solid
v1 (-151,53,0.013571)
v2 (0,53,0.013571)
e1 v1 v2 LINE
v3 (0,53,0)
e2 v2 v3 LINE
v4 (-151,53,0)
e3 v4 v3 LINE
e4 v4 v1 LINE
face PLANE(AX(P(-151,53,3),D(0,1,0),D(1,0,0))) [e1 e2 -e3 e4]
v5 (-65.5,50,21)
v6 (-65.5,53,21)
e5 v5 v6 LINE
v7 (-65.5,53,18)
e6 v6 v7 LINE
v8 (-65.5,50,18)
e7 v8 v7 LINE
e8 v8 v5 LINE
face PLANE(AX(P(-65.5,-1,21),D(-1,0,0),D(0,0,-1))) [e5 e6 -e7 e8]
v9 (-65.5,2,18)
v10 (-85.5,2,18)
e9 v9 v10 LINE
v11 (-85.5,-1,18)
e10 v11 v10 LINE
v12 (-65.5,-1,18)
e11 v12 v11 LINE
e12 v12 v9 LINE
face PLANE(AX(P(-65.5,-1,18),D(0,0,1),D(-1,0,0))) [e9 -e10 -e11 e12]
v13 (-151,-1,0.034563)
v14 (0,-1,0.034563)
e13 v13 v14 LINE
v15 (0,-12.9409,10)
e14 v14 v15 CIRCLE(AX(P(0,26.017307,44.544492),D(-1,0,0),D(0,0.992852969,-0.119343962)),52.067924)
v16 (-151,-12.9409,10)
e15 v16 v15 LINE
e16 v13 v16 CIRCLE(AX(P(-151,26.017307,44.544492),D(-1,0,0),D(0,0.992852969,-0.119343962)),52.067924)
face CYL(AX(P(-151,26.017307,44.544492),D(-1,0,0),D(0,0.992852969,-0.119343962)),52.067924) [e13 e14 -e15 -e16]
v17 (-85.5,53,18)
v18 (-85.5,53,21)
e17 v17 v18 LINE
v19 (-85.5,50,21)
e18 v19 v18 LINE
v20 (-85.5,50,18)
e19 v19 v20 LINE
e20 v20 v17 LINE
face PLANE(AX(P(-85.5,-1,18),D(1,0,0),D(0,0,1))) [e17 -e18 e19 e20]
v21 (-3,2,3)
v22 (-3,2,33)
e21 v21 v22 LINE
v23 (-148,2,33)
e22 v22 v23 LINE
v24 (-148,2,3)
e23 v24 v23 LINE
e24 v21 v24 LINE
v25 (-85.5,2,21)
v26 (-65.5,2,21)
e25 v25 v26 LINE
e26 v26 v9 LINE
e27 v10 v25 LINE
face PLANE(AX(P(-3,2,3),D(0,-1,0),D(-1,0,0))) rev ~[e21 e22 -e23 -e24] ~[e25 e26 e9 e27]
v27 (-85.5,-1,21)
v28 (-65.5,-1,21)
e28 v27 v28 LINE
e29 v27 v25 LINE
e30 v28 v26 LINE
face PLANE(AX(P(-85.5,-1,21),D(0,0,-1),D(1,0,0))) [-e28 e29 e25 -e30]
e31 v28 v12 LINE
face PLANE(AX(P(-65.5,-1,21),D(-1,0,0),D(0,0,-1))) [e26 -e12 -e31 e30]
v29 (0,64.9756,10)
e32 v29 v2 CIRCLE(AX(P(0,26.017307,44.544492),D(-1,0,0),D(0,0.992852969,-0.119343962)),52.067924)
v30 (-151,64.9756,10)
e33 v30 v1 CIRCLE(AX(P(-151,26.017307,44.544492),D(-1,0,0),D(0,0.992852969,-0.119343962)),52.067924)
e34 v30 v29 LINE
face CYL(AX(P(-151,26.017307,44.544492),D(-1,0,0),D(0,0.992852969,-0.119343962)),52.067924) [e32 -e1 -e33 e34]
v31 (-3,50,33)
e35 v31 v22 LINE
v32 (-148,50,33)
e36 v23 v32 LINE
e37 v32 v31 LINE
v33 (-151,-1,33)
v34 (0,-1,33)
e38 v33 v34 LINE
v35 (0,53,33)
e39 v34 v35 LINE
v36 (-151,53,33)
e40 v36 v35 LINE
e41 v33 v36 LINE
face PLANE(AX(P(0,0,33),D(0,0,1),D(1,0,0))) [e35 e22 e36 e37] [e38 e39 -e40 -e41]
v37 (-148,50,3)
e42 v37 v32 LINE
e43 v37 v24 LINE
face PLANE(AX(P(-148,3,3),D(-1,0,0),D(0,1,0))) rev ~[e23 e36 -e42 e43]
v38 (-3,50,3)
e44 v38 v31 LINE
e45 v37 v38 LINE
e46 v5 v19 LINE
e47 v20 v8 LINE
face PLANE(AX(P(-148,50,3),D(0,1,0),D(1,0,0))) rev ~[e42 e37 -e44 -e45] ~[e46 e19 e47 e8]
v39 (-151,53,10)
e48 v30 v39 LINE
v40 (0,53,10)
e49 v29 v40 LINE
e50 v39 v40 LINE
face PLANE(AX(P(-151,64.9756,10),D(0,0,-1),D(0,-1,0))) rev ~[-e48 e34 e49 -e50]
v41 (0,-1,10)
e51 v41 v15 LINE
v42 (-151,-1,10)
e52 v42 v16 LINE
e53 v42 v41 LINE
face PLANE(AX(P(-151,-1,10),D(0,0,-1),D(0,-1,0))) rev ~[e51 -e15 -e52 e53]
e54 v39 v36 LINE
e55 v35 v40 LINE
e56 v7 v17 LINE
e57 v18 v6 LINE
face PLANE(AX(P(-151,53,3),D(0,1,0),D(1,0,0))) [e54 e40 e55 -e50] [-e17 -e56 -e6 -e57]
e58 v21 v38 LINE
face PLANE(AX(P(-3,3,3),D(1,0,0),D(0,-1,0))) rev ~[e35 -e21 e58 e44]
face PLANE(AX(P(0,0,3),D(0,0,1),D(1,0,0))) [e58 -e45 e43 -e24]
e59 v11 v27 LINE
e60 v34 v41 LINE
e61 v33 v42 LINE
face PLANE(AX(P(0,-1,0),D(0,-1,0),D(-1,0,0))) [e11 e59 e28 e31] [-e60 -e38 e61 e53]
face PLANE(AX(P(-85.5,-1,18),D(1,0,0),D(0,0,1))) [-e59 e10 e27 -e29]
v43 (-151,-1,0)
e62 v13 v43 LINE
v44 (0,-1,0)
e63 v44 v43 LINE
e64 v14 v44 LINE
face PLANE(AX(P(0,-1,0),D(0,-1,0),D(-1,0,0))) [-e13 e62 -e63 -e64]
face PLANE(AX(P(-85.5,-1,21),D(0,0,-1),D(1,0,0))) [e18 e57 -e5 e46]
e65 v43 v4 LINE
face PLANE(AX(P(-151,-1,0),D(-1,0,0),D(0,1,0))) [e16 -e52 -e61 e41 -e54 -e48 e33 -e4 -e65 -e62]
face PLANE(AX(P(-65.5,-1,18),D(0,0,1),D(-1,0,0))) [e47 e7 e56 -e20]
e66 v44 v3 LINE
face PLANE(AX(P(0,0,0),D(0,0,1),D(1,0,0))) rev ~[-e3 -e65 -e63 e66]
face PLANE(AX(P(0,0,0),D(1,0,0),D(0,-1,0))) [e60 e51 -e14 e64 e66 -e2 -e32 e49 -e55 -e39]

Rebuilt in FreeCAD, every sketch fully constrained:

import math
import FreeCAD as App
import Part
import Sketcher
Q = App.Units.Quantity


def edges_at(feature, points):
    """Names of the edges that pass closest to the given points."""
    edges = feature.Shape.Edges
    near = lambda p: min(range(len(edges)), key=lambda i: edges[i].distToShape(Part.Vertex(*p))[0])
    return sorted({f"Edge{near(p) + 1}" for p in points})


def add_polygon(sketch, points):
    """Adds a closed chain of lines whose ends are joined by coincident constraints."""
    first, n = sketch.GeometryCount, len(points)
    for a, b in zip(points, points[1:] + points[:1]):
        sketch.addGeometry(Part.LineSegment(App.Vector(*a, 0), App.Vector(*b, 0)), False)
    for i in range(n):
        sketch.addConstraint(Sketcher.Constraint("Coincident", first + i, 2, first + (i + 1) % n, 1))

doc = App.newDocument("Part")
body = doc.addObject("PartDesign::Body", "Body")

# Sketch on XY plane
sketch1 = body.newObject("Sketcher::SketchObject", "Sketch")
sketch1.AttachmentSupport = (doc.getObject("XY_Plane"), [""])
sketch1.MapMode = "FlatFace"
add_polygon(sketch1, [(0, -1), (0, 112), (-151, 112), (-151, -1)])  # lines 0-3
sketch1.addConstraint(Sketcher.Constraint("Vertical", 0))
sketch1.addConstraint(Sketcher.Constraint("Horizontal", 1))
sketch1.addConstraint(Sketcher.Constraint("Vertical", 2))
sketch1.addConstraint(Sketcher.Constraint("Horizontal", 3))
sketch1.addConstraint(Sketcher.Constraint("PointOnObject", 0, 2, -2))
sketch1.addConstraint(Sketcher.Constraint("DistanceX", 1, 2, 1, 1, Q("151 mm")))
sketch1.addConstraint(Sketcher.Constraint("DistanceY", -1, 1, 0, 2, Q("112 mm")))
sketch1.addConstraint(Sketcher.Constraint("DistanceY", 2, 2, -1, 1, Q("1 mm")))
pad1 = body.newObject("PartDesign::Pad", "Pad")
pad1.Profile = sketch1
pad1.Length = 3

# Sketch on XY plane
sketch2 = body.newObject("Sketcher::SketchObject", "Sketch001")
sketch2.AttachmentSupport = (doc.getObject("XY_Plane"), [""])
sketch2.MapMode = "FlatFace"
sketch2.AttachmentOffset = App.Placement(App.Vector(0, 0, 3), App.Rotation())
add_polygon(sketch2, [(-151, 53), (-151, -1), (0, -1), (0, 53)])  # lines 0-3
add_polygon(sketch2, [(-148, 50), (-3, 50), (-3, 2), (-148, 2)])  # lines 4-7
sketch2.addConstraint(Sketcher.Constraint("Vertical", 0))
sketch2.addConstraint(Sketcher.Constraint("Horizontal", 1))
sketch2.addConstraint(Sketcher.Constraint("Vertical", 2))
sketch2.addConstraint(Sketcher.Constraint("Horizontal", 3))
sketch2.addConstraint(Sketcher.Constraint("Horizontal", 4))
sketch2.addConstraint(Sketcher.Constraint("Vertical", 5))
sketch2.addConstraint(Sketcher.Constraint("Horizontal", 6))
sketch2.addConstraint(Sketcher.Constraint("Vertical", 7))
sketch2.addConstraint(Sketcher.Constraint("PointOnObject", 1, 2, -2))
sketch2.addConstraint(Sketcher.Constraint("DistanceX", 1, 1, 1, 2, Q("151 mm")))
sketch2.addConstraint(Sketcher.Constraint("DistanceY", 0, 2, -1, 1, Q("1 mm")))
sketch2.addConstraint(Sketcher.Constraint("DistanceY", -1, 1, 2, 2, Q("53 mm")))
sketch2.addConstraint(Sketcher.Constraint("DistanceX", 4, 2, -1, 1, Q("3 mm")))
sketch2.addConstraint(Sketcher.Constraint("DistanceY", 4, 2, 2, 2, Q("3 mm")))
sketch2.addConstraint(Sketcher.Constraint("DistanceY", 1, 2, 5, 2, Q("3 mm")))
sketch2.addConstraint(Sketcher.Constraint("DistanceX", 0, 2, 6, 2, Q("3 mm")))
pad2 = body.newObject("PartDesign::Pad", "Pad001")
pad2.Profile = sketch2
pad2.Length = 30

# Sketch on XY plane
sketch3 = body.newObject("Sketcher::SketchObject", "Sketch002")
sketch3.AttachmentSupport = (doc.getObject("XY_Plane"), [""])
sketch3.MapMode = "FlatFace"
sketch3.AttachmentOffset = App.Placement(App.Vector(0, 0, 3), App.Rotation())
add_polygon(sketch3, [(0, 53), (0, 112), (-50, 112), (-50, 53)])  # lines 0-3
add_polygon(sketch3, [(-48, 56), (-48, 109), (-3, 109), (-3, 56)])  # lines 4-7
add_polygon(sketch3, [(-100, 53), (-100, 112), (-151, 112), (-151, 53)])  # lines 8-11
add_polygon(sketch3, [(-148, 56), (-148, 109), (-104, 109), (-104, 56)])  # lines 12-15
add_polygon(sketch3, [(-62, 62), (-62, 103), (-88, 103), (-88, 62)])  # lines 16-19
add_polygon(sketch3, [(-86, 65), (-86, 100), (-66, 100), (-66, 65)])  # lines 20-23
sketch3.addConstraint(Sketcher.Constraint("Vertical", 0))
sketch3.addConstraint(Sketcher.Constraint("Horizontal", 1))
sketch3.addConstraint(Sketcher.Constraint("Vertical", 2))
sketch3.addConstraint(Sketcher.Constraint("Horizontal", 3))
sketch3.addConstraint(Sketcher.Constraint("Vertical", 4))
sketch3.addConstraint(Sketcher.Constraint("Horizontal", 5))
sketch3.addConstraint(Sketcher.Constraint("Vertical", 6))
sketch3.addConstraint(Sketcher.Constraint("Horizontal", 7))
sketch3.addConstraint(Sketcher.Constraint("Vertical", 8))
sketch3.addConstraint(Sketcher.Constraint("Horizontal", 9))
sketch3.addConstraint(Sketcher.Constraint("Vertical", 10))
sketch3.addConstraint(Sketcher.Constraint("Horizontal", 11))
sketch3.addConstraint(Sketcher.Constraint("Vertical", 12))
sketch3.addConstraint(Sketcher.Constraint("Horizontal", 13))
sketch3.addConstraint(Sketcher.Constraint("Vertical", 14))
sketch3.addConstraint(Sketcher.Constraint("Horizontal", 15))
sketch3.addConstraint(Sketcher.Constraint("Vertical", 16))
sketch3.addConstraint(Sketcher.Constraint("Horizontal", 17))
sketch3.addConstraint(Sketcher.Constraint("Vertical", 18))
sketch3.addConstraint(Sketcher.Constraint("Horizontal", 19))
sketch3.addConstraint(Sketcher.Constraint("Vertical", 20))
sketch3.addConstraint(Sketcher.Constraint("Horizontal", 21))
sketch3.addConstraint(Sketcher.Constraint("Vertical", 22))
sketch3.addConstraint(Sketcher.Constraint("Horizontal", 23))
sketch3.addConstraint(Sketcher.Constraint("PointOnObject", 0, 2, -2))
sketch3.addConstraint(Sketcher.Constraint("Horizontal", 1, 2, 8, 2))
sketch3.addConstraint(Sketcher.Constraint("Horizontal", 3, 2, 10, 2))
sketch3.addConstraint(Sketcher.Constraint("Horizontal", 5, 2, 12, 2))
sketch3.addConstraint(Sketcher.Constraint("Horizontal", 7, 2, 14, 2))
sketch3.addConstraint(Sketcher.Constraint("Equal", 3, 9))
sketch3.addConstraint(Sketcher.Constraint("Equal", 7, 13))
sketch3.addConstraint(Sketcher.Constraint("DistanceX", 21, 1, 21, 2, Q("20 mm")))
sketch3.addConstraint(Sketcher.Constraint("DistanceY", 4, 1, 4, 2, Q("53 mm")))
sketch3.addConstraint(Sketcher.Constraint("DistanceY", 20, 1, 20, 2, Q("35 mm")))
sketch3.addConstraint(Sketcher.Constraint("DistanceX", 5, 1, 5, 2, Q("44.5 mm")))
sketch3.addConstraint(Sketcher.Constraint("DistanceY", -1, 1, 2, 2, Q("53 mm")))
sketch3.addConstraint(Sketcher.Constraint("DistanceX", 5, 2, -1, 1, Q("3 mm")))
sketch3.addConstraint(Sketcher.Constraint("DistanceX", 1, 2, 4, 2, Q("3 mm")))
sketch3.addConstraint(Sketcher.Constraint("DistanceY", 4, 2, 1, 2, Q("3 mm")))
sketch3.addConstraint(Sketcher.Constraint("DistanceY", 3, 2, 6, 2, Q("3 mm")))
sketch3.addConstraint(Sketcher.Constraint("DistanceX", 8, 2, 4, 2, Q("53 mm")))
sketch3.addConstraint(Sketcher.Constraint("DistanceX", 9, 2, 12, 2, Q("3 mm")))
sketch3.addConstraint(Sketcher.Constraint("DistanceX", 16, 2, 1, 2, Q("12 mm")))
sketch3.addConstraint(Sketcher.Constraint("DistanceX", 8, 2, 17, 2, Q("12 mm")))
sketch3.addConstraint(Sketcher.Constraint("DistanceX", 17, 2, 20, 2, Q("3 mm")))
sketch3.addConstraint(Sketcher.Constraint("DistanceY", 20, 2, 17, 2, Q("3 mm")))
sketch3.addConstraint(Sketcher.Constraint("DistanceY", 20, 2, 8, 2, Q("12 mm")))
sketch3.addConstraint(Sketcher.Constraint("DistanceY", 19, 2, 22, 2, Q("3 mm")))
pad3 = body.newObject("PartDesign::Pad", "Pad002")
pad3.Profile = sketch3
pad3.Length = 8
doc.recompute()

fillet = body.newObject("PartDesign::Fillet", "Fillet")
fillet.Base = (pad3, edges_at(pad3, [
    (-100.5, 82.5, 3),
    (-62.5, 82.5, 3),
    (-50.5, 82.5, 3),
    (-75.5, 103, 3),
    (-88.5, 82.5, 3),
    (-75.5, 62, 3),
]))
fillet.Radius = 4

# Sketch on XZ plane
sketch4 = body.newObject("Sketcher::SketchObject", "Sketch003")
sketch4.AttachmentSupport = (doc.getObject("XZ_Plane"), [""])
sketch4.MapMode = "FlatFace"
sketch4.AttachmentOffset = App.Placement(App.Vector(0, 0, 1), App.Rotation())
add_polygon(sketch4, [(-65.5, 21), (-85.5, 21), (-85.5, 18), (-65.5, 18)])  # lines 0-3
sketch4.addConstraint(Sketcher.Constraint("Horizontal", 0))
sketch4.addConstraint(Sketcher.Constraint("Vertical", 1))
sketch4.addConstraint(Sketcher.Constraint("Horizontal", 2))
sketch4.addConstraint(Sketcher.Constraint("Vertical", 3))
sketch4.addConstraint(Sketcher.Constraint("DistanceX", 0, 2, 0, 1, Q("20 mm")))
sketch4.addConstraint(Sketcher.Constraint("DistanceY", 1, 2, 1, 1, Q("3 mm")))
sketch4.addConstraint(Sketcher.Constraint("DistanceX", 2, 2, -1, 1, Q("65.5 mm")))
sketch4.addConstraint(Sketcher.Constraint("DistanceY", -1, 1, 0, 2, Q("21 mm")))
pocket1 = body.newObject("PartDesign::Pocket", "Pocket")
pocket1.Profile = sketch4
pocket1.Length = 54

# Sketch on XY plane
sketch5 = body.newObject("Sketcher::SketchObject", "Sketch004")
sketch5.AttachmentSupport = (doc.getObject("XY_Plane"), [""])
sketch5.MapMode = "FlatFace"
sketch5.AttachmentOffset = App.Placement(App.Vector(0, 0, 11), App.Rotation())
add_polygon(sketch5, [(0, 53), (0, 112), (-151, 112), (-151, 53)])  # lines 0-3
sketch5.addConstraint(Sketcher.Constraint("Vertical", 0))
sketch5.addConstraint(Sketcher.Constraint("Horizontal", 1))
sketch5.addConstraint(Sketcher.Constraint("Vertical", 2))
sketch5.addConstraint(Sketcher.Constraint("Horizontal", 3))
sketch5.addConstraint(Sketcher.Constraint("PointOnObject", 0, 2, -2))
sketch5.addConstraint(Sketcher.Constraint("DistanceX", 1, 2, 1, 1, Q("151 mm")))
sketch5.addConstraint(Sketcher.Constraint("DistanceY", 0, 1, 0, 2, Q("59 mm")))
sketch5.addConstraint(Sketcher.Constraint("DistanceY", -1, 1, 0, 2, Q("112 mm")))
pocket2 = body.newObject("PartDesign::Pocket", "Pocket001")
pocket2.Profile = sketch5
pocket2.Length = 11

# Sketch on YZ plane
sketch6 = body.newObject("Sketcher::SketchObject", "Sketch005")
sketch6.AttachmentSupport = (doc.getObject("YZ_Plane"), [""])
sketch6.MapMode = "FlatFace"
sketch6.AttachmentOffset = App.Placement(App.Vector(0, 0, -151), App.Rotation())
sketch6.addGeometry(Part.LineSegment(App.Vector(53, 10, 0), App.Vector(65, 10, 0)), False)
sketch6.addGeometry(Part.ArcOfCircle(Part.Circle(App.Vector(26, 45, 0), App.Vector(0, 0, 1), 52), math.radians(-58.79), math.radians(-41.56)), False)
sketch6.addGeometry(Part.LineSegment(App.Vector(53, 0, 0), App.Vector(53, 10, 0)), False)
sketch6.addGeometry(Part.LineSegment(App.Vector(-1, 10, 0), App.Vector(-1, 0, 0)), False)
sketch6.addGeometry(Part.ArcOfCircle(Part.Circle(App.Vector(26, 45, 0), App.Vector(0, 0, 1), 52), math.radians(-138.44), math.radians(-121.26)), False)
sketch6.addGeometry(Part.LineSegment(App.Vector(-13, 10, 0), App.Vector(-1, 10, 0)), False)
sketch6.addConstraint(Sketcher.Constraint("Coincident", 0, 2, 1, 2))
sketch6.addConstraint(Sketcher.Constraint("Coincident", 1, 1, 2, 1))
sketch6.addConstraint(Sketcher.Constraint("Coincident", 2, 2, 0, 1))
sketch6.addConstraint(Sketcher.Constraint("Coincident", 3, 2, 4, 2))
sketch6.addConstraint(Sketcher.Constraint("Coincident", 4, 1, 5, 1))
sketch6.addConstraint(Sketcher.Constraint("Coincident", 5, 2, 3, 1))
sketch6.addConstraint(Sketcher.Constraint("Horizontal", 0))
sketch6.addConstraint(Sketcher.Constraint("Vertical", 2))
sketch6.addConstraint(Sketcher.Constraint("Vertical", 3))
sketch6.addConstraint(Sketcher.Constraint("Horizontal", 5))
sketch6.addConstraint(Sketcher.Constraint("Coincident", 4, 3, 1, 3))
sketch6.addConstraint(Sketcher.Constraint("Equal", 1, 4))
sketch6.addConstraint(Sketcher.Constraint("Horizontal", 2, 2, 4, 1))
sketch6.addConstraint(Sketcher.Constraint("DistanceY", -1, 1, 0, 2, Q("10 mm")))
sketch6.addConstraint(Sketcher.Constraint("DistanceX", -1, 1, 1, 1, Q("53 mm")))
sketch6.addConstraint(Sketcher.Constraint("DistanceX", 3, 2, -1, 1, Q("1 mm")))
sketch6.addConstraint(Sketcher.Constraint("Radius", 1, Q("52.068 mm")))
sketch6.addConstraint(Sketcher.Constraint("DistanceX", 5, 1, 5, 2, Q("11.941 mm")))
sketch6.addConstraint(Sketcher.Constraint("DistanceY", 3, 2, 1, 3, Q("44.51 mm")))
pad4 = body.newObject("PartDesign::Pad", "Pad003")
pad4.Profile = sketch6
pad4.Length = 151

doc.recompute()
